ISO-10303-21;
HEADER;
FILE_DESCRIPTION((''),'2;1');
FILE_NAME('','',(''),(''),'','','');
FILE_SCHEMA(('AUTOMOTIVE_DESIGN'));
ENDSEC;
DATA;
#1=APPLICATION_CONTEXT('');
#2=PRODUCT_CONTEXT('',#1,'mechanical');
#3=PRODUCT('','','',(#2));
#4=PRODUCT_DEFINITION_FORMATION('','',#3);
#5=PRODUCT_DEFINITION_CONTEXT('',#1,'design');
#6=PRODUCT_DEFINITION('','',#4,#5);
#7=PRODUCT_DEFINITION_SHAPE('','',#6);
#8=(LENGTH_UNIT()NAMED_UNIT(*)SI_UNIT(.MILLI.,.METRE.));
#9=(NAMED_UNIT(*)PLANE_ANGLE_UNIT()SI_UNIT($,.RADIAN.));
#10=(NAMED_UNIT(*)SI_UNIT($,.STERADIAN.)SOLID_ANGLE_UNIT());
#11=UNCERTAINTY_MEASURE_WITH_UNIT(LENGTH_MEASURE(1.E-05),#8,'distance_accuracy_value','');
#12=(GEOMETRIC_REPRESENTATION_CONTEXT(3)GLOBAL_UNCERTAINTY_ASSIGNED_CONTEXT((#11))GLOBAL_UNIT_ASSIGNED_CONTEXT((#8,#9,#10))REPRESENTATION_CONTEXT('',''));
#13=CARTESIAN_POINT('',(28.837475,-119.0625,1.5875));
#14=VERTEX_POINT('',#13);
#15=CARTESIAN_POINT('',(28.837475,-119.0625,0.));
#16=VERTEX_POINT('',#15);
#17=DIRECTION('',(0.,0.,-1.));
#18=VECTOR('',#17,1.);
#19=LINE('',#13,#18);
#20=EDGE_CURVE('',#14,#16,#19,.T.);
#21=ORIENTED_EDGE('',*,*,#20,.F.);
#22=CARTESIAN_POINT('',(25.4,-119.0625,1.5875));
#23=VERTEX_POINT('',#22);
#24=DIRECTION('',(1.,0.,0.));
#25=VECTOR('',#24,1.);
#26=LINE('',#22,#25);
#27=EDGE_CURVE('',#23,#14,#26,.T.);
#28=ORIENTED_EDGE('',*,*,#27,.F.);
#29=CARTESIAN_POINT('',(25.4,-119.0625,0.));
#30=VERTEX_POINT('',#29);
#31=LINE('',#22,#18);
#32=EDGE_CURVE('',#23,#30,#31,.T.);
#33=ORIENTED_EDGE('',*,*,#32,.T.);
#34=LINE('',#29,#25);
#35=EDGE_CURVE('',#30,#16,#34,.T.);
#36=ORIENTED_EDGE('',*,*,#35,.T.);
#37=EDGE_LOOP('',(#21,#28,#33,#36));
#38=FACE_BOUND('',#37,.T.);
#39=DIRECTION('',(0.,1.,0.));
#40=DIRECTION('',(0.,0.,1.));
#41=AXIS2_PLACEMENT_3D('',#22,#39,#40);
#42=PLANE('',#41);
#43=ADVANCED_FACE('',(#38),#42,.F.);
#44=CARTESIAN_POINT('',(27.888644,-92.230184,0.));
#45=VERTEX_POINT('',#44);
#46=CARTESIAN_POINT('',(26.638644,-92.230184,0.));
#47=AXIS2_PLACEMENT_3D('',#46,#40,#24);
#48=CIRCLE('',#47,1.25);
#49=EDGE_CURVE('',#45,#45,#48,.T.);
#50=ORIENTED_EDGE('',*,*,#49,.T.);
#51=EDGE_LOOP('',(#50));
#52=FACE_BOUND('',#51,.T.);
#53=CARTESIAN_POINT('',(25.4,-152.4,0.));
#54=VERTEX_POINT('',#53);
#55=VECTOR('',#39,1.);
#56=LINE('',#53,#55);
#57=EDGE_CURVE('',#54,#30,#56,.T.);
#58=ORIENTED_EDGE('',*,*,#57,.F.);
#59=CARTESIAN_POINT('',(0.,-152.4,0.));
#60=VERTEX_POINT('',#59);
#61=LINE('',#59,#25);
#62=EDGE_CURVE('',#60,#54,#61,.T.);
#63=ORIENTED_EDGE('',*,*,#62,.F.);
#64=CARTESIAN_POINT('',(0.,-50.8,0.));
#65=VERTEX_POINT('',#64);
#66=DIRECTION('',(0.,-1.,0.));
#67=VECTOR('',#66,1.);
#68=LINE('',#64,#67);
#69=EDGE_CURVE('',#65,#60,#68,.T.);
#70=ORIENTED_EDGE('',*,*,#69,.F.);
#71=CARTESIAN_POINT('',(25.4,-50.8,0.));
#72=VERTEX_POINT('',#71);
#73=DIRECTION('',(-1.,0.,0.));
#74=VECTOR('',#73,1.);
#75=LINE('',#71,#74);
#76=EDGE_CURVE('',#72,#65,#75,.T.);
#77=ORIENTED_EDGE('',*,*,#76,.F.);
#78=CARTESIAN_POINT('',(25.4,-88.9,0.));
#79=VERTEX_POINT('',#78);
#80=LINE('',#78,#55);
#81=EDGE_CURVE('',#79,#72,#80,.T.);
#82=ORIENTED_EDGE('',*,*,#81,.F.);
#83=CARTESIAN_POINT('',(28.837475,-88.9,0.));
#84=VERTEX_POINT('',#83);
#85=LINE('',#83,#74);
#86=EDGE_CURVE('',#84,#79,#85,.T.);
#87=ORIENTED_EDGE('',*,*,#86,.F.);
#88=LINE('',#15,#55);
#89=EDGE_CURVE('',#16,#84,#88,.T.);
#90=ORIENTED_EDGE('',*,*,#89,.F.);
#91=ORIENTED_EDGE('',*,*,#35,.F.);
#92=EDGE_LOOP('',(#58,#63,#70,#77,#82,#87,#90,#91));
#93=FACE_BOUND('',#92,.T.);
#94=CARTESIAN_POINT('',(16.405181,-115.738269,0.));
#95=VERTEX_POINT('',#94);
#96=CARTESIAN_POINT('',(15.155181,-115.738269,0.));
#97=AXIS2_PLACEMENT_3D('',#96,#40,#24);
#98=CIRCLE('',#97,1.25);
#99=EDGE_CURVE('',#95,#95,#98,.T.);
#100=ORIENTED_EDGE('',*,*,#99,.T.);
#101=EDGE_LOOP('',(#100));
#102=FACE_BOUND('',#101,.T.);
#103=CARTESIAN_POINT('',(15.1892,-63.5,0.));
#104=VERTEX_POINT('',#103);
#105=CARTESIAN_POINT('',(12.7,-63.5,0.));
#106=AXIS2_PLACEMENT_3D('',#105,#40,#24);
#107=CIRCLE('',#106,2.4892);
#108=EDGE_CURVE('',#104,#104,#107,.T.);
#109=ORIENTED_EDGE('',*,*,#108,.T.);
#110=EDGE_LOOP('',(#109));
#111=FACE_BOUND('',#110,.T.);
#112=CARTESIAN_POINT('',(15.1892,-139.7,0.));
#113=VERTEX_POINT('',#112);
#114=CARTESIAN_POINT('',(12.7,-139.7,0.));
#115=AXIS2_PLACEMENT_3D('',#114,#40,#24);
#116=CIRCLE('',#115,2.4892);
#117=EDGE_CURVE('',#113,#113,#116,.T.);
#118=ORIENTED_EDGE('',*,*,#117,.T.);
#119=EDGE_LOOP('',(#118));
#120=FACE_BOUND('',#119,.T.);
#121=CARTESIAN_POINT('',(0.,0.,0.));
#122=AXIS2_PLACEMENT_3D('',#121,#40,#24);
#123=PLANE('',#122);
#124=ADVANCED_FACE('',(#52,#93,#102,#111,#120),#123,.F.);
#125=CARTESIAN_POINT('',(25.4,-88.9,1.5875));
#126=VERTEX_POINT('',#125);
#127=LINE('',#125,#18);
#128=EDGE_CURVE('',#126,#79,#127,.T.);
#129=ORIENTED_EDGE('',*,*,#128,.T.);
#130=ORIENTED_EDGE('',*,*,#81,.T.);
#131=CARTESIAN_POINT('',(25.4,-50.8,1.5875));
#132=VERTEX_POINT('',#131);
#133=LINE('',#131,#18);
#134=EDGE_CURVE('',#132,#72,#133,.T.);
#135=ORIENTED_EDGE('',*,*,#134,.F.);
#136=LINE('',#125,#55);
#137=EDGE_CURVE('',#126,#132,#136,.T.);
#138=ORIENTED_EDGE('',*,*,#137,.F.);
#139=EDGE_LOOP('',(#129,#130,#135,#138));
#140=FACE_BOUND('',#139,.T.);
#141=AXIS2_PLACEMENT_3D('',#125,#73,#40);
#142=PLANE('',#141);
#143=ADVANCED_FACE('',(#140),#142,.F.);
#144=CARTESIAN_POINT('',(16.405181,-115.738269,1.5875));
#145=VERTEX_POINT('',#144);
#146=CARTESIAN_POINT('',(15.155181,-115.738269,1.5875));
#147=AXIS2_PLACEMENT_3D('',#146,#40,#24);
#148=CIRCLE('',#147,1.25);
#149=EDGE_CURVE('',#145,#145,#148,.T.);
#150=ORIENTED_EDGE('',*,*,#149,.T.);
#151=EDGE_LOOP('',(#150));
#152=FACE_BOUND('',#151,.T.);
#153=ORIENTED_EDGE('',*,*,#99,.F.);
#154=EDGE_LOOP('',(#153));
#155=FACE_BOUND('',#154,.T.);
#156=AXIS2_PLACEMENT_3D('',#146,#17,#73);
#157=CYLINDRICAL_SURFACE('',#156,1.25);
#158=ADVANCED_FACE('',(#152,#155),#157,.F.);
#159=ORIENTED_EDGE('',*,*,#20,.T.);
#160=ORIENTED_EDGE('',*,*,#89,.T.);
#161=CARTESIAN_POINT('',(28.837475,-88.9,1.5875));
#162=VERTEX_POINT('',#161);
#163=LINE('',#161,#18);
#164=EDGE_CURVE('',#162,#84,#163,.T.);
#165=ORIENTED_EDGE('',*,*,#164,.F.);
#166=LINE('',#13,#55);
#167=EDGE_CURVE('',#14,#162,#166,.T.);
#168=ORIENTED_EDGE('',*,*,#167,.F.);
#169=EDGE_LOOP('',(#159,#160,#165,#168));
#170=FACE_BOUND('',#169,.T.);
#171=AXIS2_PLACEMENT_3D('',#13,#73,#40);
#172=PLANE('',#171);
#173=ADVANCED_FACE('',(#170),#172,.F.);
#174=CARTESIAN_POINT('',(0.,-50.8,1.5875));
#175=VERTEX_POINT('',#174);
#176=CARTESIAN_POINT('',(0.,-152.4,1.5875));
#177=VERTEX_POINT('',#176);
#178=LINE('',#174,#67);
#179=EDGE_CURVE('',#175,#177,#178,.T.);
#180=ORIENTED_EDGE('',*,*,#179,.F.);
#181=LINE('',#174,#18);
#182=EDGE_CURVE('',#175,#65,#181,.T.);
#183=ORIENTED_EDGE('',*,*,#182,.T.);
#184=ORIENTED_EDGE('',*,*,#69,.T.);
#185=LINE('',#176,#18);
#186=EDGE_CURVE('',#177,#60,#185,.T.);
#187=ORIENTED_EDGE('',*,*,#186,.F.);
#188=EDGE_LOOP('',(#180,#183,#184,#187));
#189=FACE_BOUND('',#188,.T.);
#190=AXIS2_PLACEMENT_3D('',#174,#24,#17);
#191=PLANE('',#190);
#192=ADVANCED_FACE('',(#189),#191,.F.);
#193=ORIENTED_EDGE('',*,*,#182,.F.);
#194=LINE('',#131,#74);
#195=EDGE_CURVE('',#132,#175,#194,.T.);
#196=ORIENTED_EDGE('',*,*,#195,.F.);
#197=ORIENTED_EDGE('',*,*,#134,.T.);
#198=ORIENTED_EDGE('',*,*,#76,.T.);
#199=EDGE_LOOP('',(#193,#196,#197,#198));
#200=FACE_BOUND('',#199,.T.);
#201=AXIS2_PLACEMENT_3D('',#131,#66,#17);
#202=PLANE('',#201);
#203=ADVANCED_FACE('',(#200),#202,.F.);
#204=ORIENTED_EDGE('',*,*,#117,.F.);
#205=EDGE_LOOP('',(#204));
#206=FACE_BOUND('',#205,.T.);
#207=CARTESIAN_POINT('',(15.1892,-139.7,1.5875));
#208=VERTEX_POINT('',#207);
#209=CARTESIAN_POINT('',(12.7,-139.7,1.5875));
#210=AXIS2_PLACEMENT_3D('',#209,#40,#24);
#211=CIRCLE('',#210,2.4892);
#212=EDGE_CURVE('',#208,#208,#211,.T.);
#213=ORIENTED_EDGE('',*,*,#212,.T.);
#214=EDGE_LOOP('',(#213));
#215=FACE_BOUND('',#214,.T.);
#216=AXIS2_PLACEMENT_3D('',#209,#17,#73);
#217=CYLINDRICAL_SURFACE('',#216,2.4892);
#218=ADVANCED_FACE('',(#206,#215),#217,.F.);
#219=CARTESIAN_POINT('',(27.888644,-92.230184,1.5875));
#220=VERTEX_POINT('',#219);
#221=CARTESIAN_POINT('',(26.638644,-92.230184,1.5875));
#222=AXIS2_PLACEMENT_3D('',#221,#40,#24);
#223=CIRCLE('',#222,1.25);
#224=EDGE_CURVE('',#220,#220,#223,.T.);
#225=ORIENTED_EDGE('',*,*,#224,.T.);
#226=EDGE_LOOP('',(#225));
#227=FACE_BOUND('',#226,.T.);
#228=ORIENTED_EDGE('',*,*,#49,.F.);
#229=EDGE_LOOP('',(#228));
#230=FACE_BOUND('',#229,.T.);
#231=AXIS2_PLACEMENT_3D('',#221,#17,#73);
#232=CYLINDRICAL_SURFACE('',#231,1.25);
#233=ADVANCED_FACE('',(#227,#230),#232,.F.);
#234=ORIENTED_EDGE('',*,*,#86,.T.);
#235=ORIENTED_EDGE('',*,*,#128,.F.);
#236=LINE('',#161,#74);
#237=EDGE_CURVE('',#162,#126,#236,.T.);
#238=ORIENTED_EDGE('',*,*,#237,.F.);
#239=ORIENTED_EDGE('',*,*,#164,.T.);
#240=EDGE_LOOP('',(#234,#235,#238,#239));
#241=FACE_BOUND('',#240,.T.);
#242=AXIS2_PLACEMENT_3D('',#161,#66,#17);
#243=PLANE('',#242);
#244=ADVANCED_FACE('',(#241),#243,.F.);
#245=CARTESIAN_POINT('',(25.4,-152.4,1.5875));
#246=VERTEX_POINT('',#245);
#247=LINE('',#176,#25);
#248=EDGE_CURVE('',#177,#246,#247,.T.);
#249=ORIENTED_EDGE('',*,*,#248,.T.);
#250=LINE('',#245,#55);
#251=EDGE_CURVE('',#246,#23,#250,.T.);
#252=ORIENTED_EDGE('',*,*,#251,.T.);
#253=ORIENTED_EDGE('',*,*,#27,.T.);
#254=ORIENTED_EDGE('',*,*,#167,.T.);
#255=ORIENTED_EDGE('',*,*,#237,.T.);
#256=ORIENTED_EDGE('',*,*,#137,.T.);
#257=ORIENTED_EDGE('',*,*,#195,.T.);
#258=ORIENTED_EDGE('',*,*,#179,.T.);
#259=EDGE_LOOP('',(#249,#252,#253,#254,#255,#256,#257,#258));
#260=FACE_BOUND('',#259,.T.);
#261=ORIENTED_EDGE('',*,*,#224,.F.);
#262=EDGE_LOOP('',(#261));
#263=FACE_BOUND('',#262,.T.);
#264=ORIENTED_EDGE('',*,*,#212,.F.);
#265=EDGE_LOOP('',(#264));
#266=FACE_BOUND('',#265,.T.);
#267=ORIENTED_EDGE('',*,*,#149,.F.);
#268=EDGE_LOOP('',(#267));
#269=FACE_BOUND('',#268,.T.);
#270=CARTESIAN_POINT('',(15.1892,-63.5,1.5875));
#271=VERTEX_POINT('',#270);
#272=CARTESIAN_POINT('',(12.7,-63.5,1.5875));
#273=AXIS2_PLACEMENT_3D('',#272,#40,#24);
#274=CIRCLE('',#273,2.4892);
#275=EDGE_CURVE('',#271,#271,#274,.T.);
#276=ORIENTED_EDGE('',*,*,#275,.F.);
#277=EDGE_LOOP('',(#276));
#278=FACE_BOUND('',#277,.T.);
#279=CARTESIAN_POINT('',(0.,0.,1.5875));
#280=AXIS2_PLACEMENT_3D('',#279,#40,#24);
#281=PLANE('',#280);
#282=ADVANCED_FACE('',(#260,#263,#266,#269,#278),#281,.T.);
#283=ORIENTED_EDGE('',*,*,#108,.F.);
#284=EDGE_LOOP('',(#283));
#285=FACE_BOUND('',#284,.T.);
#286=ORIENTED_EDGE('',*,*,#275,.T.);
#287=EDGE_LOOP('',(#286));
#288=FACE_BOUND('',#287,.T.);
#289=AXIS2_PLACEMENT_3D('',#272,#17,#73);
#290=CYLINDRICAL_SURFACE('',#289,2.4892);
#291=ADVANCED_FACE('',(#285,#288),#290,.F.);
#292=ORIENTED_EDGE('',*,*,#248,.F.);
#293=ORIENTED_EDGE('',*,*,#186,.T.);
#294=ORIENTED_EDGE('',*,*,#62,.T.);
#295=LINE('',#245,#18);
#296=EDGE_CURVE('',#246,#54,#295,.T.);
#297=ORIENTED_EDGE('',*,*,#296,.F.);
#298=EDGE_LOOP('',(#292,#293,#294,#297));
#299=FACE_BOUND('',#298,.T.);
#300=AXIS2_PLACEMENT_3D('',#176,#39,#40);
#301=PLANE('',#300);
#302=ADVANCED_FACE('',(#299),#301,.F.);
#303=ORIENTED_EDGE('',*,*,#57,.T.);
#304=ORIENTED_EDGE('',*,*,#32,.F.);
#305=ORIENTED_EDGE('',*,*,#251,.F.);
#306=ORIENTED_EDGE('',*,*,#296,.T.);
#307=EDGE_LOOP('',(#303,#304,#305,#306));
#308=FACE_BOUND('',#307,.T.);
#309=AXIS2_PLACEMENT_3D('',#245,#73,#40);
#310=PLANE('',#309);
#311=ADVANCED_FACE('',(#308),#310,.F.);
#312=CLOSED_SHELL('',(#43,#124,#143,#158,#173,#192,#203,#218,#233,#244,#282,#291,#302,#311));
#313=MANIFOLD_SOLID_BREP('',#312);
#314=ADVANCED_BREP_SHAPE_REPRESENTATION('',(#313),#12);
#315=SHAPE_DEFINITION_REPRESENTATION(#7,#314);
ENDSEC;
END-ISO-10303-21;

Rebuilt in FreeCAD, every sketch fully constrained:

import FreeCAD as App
import Part
import Sketcher
Q = App.Units.Quantity

doc = App.newDocument("Part")
body = doc.addObject("PartDesign::Body", "Body")

# Sketch on XY plane
sketch1 = body.newObject("Sketcher::SketchObject", "Sketch")
sketch1.AttachmentSupport = (doc.getObject("XY_Plane"), [""])
sketch1.MapMode = "FlatFace"
sketch1.addGeometry([
    Part.LineSegment(App.Vector(0, -50.8, 0), App.Vector(0, -152.4, 0)),  # 0
    Part.LineSegment(App.Vector(0, -152.4, 0), App.Vector(25.4, -152.4, 0)),  # 1
    Part.LineSegment(App.Vector(25.4, -152.4, 0), App.Vector(25.4, -119.0625, 0)),  # 2
    Part.LineSegment(App.Vector(25.4, -119.0625, 0), App.Vector(28.837475, -119.0625, 0)),  # 3
    Part.LineSegment(App.Vector(28.837475, -119.0625, 0), App.Vector(28.837475, -88.9, 0)),  # 4
    Part.LineSegment(App.Vector(28.837475, -88.9, 0), App.Vector(25.4, -88.9, 0)),  # 5
    Part.LineSegment(App.Vector(25.4, -88.9, 0), App.Vector(25.4, -50.8, 0)),  # 6
    Part.LineSegment(App.Vector(25.4, -50.8, 0), App.Vector(0, -50.8, 0)),  # 7
    Part.Circle(App.Vector(12.7, -139.7, 0), App.Vector(0, 0, 1), 2.4892),  # 8
    Part.Circle(App.Vector(15.155181, -115.738269, 0), App.Vector(0, 0, 1), 1.25),  # 9
    Part.Circle(App.Vector(12.7, -63.5, 0), App.Vector(0, 0, 1), 2.4892),  # 10
    Part.Circle(App.Vector(26.638644, -92.230184, 0), App.Vector(0, 0, 1), 1.25),  # 11
], False)
sketch1.addConstraint([
    Sketcher.Constraint("Coincident", 0, 2, 1, 1),
    Sketcher.Constraint("Coincident", 1, 2, 2, 1),
    Sketcher.Constraint("Coincident", 2, 2, 3, 1),
    Sketcher.Constraint("Coincident", 3, 2, 4, 1),
    Sketcher.Constraint("Coincident", 4, 2, 5, 1),
    Sketcher.Constraint("Coincident", 5, 2, 6, 1),
    Sketcher.Constraint("Coincident", 6, 2, 7, 1),
    Sketcher.Constraint("Coincident", 7, 2, 0, 1),
    Sketcher.Constraint("Vertical", 0),
    Sketcher.Constraint("Horizontal", 1),
    Sketcher.Constraint("Vertical", 2),
    Sketcher.Constraint("Horizontal", 3),
    Sketcher.Constraint("Vertical", 4),
    Sketcher.Constraint("Horizontal", 5),
    Sketcher.Constraint("Vertical", 6),
    Sketcher.Constraint("Horizontal", 7),
    Sketcher.Constraint("Equal", 8, 10),
    Sketcher.Constraint("Equal", 9, 11),
    Sketcher.Constraint("PointOnObject", 0, 2, -2),
    Sketcher.Constraint("Vertical", 8, 3, 10, 3),
    Sketcher.Constraint("Vertical", 2, 2, 5, 2),
    Sketcher.Constraint("DistanceX", 1, 1, 1, 2, Q("1 in")),
    Sketcher.Constraint("DistanceY", 0, 2, 0, 1, Q("4 in")),
    Sketcher.Constraint("Diameter", 8, Q("0.196 in")),
    Sketcher.Constraint("DistanceY", 6, 1, 6, 2, Q("1.5 in")),
    Sketcher.Constraint("DistanceY", 0, 2, -1, 1, Q("6 in")),
    Sketcher.Constraint("DistanceY", 8, 3, 10, 3, Q("3 in")),
    Sketcher.Constraint("DistanceY", 4, 2, 10, 3, Q("1 in")),
    Sketcher.Constraint("DistanceX", -1, 1, 8, 3, Q("0.5 in")),
    Sketcher.Constraint("Diameter", 9, 2.5),
    Sketcher.Constraint("DistanceY", 2, 1, 2, 2, Q("1.3125 in")),
    Sketcher.Constraint("DistanceX", 3, 1, 3, 2, 3.437475),
    Sketcher.Constraint("DistanceX", -1, 1, 9, 3, 15.155181),
    Sketcher.Constraint("DistanceY", 9, 3, -1, 1, 115.738269),
    Sketcher.Constraint("DistanceX", 11, 3, 3, 2, 2.198832),
    Sketcher.Constraint("DistanceY", 11, 3, -1, 1, 92.230184),
])
pad1 = body.newObject("PartDesign::Pad", "Pad")
pad1.Profile = sketch1
pad1.Length = Q("0.0625 in")

doc.recompute()
